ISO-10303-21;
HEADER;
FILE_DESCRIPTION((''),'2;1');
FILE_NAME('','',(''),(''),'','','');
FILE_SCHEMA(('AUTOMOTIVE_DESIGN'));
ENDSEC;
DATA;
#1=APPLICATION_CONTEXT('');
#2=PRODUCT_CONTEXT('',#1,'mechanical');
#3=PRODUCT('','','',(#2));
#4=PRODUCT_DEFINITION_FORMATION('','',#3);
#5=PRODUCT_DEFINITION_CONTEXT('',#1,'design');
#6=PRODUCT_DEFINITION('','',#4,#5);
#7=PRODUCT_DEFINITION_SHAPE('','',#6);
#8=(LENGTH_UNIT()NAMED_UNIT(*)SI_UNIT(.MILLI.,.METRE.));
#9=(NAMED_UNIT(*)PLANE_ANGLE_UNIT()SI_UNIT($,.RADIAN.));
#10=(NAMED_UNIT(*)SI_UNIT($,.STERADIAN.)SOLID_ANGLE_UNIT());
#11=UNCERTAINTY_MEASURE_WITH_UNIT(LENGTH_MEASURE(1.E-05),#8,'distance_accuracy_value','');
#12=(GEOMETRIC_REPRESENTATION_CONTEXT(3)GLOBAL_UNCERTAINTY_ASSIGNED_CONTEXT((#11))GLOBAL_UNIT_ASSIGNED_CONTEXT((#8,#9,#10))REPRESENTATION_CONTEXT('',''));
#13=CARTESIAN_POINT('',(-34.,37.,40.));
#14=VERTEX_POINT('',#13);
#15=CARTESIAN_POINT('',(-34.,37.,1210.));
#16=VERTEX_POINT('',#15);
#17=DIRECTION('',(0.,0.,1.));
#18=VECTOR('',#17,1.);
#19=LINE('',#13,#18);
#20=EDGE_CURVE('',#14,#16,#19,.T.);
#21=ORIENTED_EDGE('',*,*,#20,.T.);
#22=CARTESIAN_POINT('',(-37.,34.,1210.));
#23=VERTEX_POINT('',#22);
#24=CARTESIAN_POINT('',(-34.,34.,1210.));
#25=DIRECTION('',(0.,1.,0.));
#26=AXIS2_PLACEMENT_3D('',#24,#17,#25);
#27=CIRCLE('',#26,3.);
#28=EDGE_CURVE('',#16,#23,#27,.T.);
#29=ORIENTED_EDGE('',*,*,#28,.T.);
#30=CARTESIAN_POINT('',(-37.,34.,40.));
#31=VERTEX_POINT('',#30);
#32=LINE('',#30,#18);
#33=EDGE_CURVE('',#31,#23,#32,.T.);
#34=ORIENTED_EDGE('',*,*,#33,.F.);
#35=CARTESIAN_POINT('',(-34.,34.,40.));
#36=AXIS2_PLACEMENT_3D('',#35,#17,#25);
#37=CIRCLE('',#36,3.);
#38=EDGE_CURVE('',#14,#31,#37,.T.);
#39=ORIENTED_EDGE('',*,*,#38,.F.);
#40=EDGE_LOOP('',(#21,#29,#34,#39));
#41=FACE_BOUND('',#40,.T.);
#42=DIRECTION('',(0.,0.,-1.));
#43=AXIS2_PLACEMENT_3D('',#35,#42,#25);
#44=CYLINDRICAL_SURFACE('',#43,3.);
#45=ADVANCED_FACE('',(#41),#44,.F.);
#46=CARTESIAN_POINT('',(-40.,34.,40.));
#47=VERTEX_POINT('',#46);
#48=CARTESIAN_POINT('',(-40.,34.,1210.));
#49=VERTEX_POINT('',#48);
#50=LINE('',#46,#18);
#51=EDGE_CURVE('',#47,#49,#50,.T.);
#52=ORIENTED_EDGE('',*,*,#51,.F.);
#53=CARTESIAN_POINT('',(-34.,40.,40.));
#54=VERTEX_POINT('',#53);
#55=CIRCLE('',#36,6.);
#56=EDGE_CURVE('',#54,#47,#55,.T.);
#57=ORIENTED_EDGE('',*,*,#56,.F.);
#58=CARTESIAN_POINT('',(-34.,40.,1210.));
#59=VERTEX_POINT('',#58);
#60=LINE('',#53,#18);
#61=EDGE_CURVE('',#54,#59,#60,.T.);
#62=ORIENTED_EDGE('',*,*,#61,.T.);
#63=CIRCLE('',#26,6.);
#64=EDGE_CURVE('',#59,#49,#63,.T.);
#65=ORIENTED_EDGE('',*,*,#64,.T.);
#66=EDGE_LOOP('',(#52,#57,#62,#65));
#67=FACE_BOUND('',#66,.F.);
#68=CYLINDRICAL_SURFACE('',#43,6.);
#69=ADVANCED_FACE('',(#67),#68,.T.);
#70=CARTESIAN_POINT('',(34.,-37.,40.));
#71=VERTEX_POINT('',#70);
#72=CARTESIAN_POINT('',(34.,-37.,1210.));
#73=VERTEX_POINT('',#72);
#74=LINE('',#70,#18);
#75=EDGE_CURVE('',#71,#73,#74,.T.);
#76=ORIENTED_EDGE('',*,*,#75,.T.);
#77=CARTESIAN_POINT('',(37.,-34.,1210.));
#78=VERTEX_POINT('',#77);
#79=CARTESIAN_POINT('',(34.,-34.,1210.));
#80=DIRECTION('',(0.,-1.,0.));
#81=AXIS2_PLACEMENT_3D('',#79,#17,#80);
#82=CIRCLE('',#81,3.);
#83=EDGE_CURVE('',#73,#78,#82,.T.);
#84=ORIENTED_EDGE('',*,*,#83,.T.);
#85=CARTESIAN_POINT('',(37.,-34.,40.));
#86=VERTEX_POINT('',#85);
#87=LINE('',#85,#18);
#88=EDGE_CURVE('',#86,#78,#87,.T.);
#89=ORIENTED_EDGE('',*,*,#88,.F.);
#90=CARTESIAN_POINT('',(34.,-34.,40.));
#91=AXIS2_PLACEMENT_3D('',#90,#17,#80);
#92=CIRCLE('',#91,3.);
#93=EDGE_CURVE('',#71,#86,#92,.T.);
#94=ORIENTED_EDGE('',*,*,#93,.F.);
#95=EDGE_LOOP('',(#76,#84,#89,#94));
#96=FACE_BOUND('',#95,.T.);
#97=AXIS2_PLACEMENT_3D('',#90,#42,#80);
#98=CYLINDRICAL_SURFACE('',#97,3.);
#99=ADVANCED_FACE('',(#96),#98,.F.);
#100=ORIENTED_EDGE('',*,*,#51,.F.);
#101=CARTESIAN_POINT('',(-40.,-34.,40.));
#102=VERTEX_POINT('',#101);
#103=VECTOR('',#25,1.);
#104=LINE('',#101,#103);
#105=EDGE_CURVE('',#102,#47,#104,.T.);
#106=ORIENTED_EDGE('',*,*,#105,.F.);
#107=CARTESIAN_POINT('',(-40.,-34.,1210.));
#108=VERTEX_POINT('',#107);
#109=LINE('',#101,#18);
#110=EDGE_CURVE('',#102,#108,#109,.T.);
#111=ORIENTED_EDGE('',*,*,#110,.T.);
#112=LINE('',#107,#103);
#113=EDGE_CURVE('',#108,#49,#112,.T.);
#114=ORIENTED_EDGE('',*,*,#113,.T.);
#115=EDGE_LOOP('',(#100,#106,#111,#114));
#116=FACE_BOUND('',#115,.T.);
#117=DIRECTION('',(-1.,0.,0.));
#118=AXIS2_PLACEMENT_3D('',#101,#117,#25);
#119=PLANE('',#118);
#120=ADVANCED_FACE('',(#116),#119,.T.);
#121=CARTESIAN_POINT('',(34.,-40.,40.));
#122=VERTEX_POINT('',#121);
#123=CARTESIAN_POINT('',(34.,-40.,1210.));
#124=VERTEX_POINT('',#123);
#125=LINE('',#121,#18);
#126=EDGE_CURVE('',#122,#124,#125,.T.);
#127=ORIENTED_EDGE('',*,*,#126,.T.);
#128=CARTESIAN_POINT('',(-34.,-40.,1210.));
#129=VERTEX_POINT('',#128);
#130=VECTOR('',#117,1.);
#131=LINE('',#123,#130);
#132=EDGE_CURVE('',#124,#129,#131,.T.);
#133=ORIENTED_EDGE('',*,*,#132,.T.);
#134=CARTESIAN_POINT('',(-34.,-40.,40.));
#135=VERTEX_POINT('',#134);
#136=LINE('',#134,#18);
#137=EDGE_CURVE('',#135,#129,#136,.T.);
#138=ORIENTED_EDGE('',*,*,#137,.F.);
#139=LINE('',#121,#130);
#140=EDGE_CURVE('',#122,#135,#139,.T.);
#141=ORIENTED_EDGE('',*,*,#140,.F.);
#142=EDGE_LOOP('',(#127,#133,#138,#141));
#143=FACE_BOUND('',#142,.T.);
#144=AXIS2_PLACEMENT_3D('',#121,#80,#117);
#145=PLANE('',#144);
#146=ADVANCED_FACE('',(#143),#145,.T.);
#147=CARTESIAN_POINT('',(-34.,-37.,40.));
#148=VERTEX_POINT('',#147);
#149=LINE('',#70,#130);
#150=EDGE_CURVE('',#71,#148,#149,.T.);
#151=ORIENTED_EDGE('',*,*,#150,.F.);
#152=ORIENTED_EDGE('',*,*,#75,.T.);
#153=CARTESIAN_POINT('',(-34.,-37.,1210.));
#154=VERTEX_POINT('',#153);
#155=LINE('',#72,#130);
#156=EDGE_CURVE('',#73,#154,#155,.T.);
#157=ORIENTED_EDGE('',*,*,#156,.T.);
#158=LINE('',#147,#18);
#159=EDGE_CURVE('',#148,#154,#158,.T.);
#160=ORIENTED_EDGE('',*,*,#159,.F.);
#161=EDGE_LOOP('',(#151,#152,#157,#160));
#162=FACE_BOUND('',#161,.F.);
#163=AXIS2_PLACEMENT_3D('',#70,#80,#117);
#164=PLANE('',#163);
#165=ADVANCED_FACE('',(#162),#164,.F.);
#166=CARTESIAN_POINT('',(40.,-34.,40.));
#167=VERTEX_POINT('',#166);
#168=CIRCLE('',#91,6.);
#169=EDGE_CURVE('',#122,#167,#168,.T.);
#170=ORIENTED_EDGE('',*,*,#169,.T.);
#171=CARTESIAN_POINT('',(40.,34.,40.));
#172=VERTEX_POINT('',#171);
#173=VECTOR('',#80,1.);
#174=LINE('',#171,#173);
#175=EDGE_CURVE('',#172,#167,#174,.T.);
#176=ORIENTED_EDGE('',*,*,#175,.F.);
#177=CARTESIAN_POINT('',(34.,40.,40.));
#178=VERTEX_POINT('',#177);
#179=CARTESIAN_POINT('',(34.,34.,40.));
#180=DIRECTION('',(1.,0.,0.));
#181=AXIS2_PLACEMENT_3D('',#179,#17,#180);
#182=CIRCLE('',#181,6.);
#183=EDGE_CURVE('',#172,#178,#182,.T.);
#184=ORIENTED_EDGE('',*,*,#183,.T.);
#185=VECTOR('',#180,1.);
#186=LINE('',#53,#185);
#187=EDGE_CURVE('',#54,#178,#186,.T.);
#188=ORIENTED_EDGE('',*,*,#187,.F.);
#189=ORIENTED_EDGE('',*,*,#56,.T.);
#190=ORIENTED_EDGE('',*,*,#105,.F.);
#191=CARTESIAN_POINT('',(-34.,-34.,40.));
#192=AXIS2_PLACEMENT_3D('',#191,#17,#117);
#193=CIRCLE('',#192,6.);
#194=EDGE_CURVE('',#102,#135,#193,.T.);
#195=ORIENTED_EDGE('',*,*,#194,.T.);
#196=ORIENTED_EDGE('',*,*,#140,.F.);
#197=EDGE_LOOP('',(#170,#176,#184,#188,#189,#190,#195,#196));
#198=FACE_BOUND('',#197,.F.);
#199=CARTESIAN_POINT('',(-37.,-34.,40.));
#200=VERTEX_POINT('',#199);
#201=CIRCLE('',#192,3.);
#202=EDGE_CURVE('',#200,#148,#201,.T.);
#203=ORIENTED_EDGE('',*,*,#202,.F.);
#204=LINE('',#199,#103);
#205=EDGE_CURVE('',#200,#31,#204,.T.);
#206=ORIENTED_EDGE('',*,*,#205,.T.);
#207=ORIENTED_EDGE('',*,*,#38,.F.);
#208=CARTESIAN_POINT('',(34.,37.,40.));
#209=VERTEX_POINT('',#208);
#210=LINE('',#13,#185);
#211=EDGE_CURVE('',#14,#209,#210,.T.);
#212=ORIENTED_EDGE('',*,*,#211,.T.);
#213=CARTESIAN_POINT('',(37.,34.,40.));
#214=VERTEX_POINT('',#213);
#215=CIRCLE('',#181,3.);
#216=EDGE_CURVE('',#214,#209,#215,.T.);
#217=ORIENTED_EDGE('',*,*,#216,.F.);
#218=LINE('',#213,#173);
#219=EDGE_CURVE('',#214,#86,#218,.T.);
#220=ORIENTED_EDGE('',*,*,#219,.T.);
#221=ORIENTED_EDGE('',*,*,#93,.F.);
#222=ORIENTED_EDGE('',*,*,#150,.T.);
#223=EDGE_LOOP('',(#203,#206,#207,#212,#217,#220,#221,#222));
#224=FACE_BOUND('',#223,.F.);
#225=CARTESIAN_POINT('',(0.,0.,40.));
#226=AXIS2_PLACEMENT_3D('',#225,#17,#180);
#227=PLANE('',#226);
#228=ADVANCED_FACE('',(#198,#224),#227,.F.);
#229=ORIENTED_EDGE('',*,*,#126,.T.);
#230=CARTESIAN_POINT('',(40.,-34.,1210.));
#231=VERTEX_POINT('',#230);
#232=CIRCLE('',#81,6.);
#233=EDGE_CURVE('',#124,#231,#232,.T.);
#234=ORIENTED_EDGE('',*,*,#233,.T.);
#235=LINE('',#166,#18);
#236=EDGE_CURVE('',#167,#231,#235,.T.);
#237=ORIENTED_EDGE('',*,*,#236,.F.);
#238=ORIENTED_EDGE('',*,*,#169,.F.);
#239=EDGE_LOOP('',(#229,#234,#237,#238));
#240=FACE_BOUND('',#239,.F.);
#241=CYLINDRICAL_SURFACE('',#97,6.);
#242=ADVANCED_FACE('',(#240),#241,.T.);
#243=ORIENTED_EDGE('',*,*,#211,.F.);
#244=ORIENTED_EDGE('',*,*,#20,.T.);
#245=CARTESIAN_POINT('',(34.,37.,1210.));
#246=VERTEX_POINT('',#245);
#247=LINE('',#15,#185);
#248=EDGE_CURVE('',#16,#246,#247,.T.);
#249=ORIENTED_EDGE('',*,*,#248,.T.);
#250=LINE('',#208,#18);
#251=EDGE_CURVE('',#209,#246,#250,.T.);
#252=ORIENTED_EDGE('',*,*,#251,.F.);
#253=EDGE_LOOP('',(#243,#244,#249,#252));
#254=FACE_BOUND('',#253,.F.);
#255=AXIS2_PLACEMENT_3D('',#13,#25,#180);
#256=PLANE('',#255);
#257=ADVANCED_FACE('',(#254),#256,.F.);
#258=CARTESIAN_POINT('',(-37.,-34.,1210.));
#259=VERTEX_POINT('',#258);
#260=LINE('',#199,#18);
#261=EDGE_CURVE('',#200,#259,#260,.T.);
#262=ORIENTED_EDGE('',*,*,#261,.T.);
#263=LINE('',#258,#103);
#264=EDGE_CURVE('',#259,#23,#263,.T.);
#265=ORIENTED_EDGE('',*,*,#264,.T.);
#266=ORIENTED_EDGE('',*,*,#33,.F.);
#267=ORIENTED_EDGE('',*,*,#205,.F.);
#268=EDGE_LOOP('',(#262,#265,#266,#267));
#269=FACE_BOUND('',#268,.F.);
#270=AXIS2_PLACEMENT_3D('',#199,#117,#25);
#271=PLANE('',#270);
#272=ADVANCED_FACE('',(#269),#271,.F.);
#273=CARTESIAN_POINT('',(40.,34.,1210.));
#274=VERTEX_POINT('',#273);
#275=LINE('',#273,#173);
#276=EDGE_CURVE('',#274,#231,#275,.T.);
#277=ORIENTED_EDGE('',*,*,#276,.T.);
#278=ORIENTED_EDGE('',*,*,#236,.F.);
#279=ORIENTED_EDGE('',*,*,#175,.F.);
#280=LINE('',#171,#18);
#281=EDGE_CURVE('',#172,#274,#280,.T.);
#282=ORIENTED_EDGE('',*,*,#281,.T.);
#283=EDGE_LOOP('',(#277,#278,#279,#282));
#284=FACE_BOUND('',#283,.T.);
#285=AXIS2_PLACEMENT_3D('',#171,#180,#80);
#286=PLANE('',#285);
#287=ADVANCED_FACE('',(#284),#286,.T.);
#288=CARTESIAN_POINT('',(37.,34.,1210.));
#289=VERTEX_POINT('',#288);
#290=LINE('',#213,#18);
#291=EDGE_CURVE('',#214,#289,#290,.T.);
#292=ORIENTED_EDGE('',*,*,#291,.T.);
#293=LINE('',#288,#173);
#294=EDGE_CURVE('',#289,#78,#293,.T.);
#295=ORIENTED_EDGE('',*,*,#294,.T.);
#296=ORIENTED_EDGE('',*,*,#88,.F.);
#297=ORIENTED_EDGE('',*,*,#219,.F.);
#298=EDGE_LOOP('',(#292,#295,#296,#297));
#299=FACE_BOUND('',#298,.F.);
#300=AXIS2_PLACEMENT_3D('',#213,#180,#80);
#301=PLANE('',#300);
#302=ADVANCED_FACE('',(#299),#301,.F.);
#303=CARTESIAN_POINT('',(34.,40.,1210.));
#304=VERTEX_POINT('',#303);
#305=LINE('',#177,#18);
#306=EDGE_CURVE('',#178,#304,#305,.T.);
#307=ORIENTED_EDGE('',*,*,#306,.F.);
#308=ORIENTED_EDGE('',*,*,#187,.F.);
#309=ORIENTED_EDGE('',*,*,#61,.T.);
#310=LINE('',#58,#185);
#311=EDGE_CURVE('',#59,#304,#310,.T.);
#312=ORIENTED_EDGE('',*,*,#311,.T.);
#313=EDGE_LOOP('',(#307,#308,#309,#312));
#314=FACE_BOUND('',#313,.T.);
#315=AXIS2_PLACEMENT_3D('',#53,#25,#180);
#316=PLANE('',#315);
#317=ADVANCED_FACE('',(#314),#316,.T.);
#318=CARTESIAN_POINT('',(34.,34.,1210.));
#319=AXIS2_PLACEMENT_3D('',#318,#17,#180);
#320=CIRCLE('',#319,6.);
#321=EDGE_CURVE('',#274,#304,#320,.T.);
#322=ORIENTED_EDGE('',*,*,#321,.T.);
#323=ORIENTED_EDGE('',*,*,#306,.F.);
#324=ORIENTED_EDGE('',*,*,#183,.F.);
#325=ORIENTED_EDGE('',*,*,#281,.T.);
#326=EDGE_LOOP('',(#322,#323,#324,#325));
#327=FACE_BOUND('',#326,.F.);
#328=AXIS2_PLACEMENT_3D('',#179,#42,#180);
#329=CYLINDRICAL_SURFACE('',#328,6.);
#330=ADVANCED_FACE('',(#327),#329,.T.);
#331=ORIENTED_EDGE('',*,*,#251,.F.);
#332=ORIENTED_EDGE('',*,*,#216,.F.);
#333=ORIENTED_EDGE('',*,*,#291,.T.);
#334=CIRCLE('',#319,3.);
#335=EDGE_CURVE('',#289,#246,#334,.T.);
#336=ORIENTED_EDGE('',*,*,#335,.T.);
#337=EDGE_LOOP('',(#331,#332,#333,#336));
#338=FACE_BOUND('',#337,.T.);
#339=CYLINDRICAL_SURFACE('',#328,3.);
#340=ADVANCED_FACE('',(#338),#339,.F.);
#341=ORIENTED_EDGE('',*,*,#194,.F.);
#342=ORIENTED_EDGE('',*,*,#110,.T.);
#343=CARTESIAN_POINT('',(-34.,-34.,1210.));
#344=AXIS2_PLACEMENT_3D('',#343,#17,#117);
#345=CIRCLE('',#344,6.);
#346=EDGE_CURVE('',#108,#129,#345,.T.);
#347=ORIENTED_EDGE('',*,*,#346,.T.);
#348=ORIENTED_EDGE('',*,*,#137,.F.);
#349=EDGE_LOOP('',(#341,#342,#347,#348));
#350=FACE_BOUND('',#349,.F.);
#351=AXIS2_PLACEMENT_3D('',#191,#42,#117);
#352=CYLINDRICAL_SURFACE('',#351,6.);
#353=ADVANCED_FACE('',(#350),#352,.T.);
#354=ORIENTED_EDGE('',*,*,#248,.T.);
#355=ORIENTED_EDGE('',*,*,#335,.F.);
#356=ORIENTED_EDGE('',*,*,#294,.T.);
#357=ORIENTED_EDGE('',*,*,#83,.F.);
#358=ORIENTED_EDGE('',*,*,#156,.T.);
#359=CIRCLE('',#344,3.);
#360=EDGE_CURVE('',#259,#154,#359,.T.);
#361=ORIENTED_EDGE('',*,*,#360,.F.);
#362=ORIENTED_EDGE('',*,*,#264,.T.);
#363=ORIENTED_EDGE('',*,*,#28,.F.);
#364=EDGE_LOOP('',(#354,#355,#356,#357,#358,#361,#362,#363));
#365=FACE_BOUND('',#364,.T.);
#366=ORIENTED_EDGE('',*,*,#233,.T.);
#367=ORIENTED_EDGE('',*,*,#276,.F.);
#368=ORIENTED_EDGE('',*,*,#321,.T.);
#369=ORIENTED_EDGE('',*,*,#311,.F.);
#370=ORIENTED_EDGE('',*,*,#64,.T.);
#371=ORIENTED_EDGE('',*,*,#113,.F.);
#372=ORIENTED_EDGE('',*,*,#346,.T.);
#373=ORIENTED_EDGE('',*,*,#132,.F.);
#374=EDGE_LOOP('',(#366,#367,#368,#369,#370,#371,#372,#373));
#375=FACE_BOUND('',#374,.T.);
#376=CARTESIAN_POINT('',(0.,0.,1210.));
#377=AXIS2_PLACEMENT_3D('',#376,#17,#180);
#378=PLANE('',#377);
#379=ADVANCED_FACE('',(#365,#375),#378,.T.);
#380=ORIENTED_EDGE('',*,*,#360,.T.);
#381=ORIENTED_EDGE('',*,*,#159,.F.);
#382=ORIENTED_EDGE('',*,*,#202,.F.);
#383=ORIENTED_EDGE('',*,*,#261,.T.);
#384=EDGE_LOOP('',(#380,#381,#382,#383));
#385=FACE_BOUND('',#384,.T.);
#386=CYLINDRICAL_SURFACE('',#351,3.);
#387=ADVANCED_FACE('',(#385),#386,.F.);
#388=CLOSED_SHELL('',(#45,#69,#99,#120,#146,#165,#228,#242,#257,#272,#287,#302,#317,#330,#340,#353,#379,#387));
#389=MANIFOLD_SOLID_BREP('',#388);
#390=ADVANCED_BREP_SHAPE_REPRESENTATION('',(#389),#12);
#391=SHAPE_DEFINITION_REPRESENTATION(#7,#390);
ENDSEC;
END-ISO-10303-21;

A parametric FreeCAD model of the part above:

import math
import FreeCAD as App
import Part
import Sketcher
from FreeCAD import Vector

doc = App.newDocument("Part")
body = doc.addObject("PartDesign::Body", "Body")

# Sketch on XY plane
sketch1 = body.newObject("Sketcher::SketchObject", "Sketch")
sketch1.AttachmentSupport = (doc.getObject("XY_Plane"), [""])
sketch1.MapMode = "FlatFace"
sketch1.AttachmentOffset = App.Placement(Vector(0, 0, 40), App.Rotation())
sketch1.addGeometry([
    Part.LineSegment(Vector(-40, 34, 0), Vector(-40, -34, 0)),  # 0
    Part.ArcOfCircle(Part.Circle(Vector(-34, -34, 0), Vector(0, 0, 1), 6), math.radians(180), math.radians(270)),  # 1
    Part.LineSegment(Vector(-34, -40, 0), Vector(34, -40, 0)),  # 2
    Part.ArcOfCircle(Part.Circle(Vector(34, -34, 0), Vector(0, 0, 1), 6), math.radians(-90), math.radians(0)),  # 3
    Part.LineSegment(Vector(40, -34, 0), Vector(40, 34, 0)),  # 4
    Part.ArcOfCircle(Part.Circle(Vector(34, 34, 0), Vector(0, 0, 1), 6), math.radians(0), math.radians(90)),  # 5
    Part.LineSegment(Vector(34, 40, 0), Vector(-34, 40, 0)),  # 6
    Part.ArcOfCircle(Part.Circle(Vector(-34, 34, 0), Vector(0, 0, 1), 6), math.radians(90), math.radians(180)),  # 7
    Part.ArcOfCircle(Part.Circle(Vector(-34, 34, 0), Vector(0, 0, 1), 3), math.radians(90), math.radians(180)),  # 8
    Part.LineSegment(Vector(-34, 37, 0), Vector(34, 37, 0)),  # 9
    Part.ArcOfCircle(Part.Circle(Vector(34, 34, 0), Vector(0, 0, 1), 3), math.radians(0), math.radians(90)),  # 10
    Part.LineSegment(Vector(37, 34, 0), Vector(37, -34, 0)),  # 11
    Part.ArcOfCircle(Part.Circle(Vector(34, -34, 0), Vector(0, 0, 1), 3), math.radians(-90), math.radians(0)),  # 12
    Part.LineSegment(Vector(34, -37, 0), Vector(-34, -37, 0)),  # 13
    Part.ArcOfCircle(Part.Circle(Vector(-34, -34, 0), Vector(0, 0, 1), 3), math.radians(180), math.radians(270)),  # 14
    Part.LineSegment(Vector(-37, -34, 0), Vector(-37, 34, 0)),  # 15
], False)
sketch1.addConstraint([
    Sketcher.Constraint("Tangent", 0, 2, 1, 1),
    Sketcher.Constraint("Tangent", 1, 2, 2, 1),
    Sketcher.Constraint("Tangent", 2, 2, 3, 1),
    Sketcher.Constraint("Tangent", 3, 2, 4, 1),
    Sketcher.Constraint("Tangent", 4, 2, 5, 1),
    Sketcher.Constraint("Tangent", 5, 2, 6, 1),
    Sketcher.Constraint("Tangent", 6, 2, 7, 1),
    Sketcher.Constraint("Tangent", 7, 2, 0, 1),
    Sketcher.Constraint("Tangent", 8, 1, 9, 1),
    Sketcher.Constraint("Tangent", 9, 2, 10, 2),
    Sketcher.Constraint("Tangent", 10, 1, 11, 1),
    Sketcher.Constraint("Tangent", 11, 2, 12, 2),
    Sketcher.Constraint("Tangent", 12, 1, 13, 1),
    Sketcher.Constraint("Tangent", 13, 2, 14, 2),
    Sketcher.Constraint("Tangent", 14, 1, 15, 1),
    Sketcher.Constraint("Tangent", 15, 2, 8, 2),
    Sketcher.Constraint("Vertical", 0),
    Sketcher.Constraint("Horizontal", 2),
    Sketcher.Constraint("Vertical", 4),
    Sketcher.Constraint("Horizontal", 6),
    Sketcher.Constraint("Horizontal", 9),
    Sketcher.Constraint("Vertical", 11),
    Sketcher.Constraint("Horizontal", 13),
    Sketcher.Constraint("Vertical", 15),
    Sketcher.Constraint("Coincident", 8, 3, 7, 3),
    Sketcher.Constraint("Coincident", 10, 3, 5, 3),
    Sketcher.Constraint("Coincident", 12, 3, 3, 3),
    Sketcher.Constraint("Equal", 1, 3),
    Sketcher.Constraint("Equal", 3, 5),
    Sketcher.Constraint("Equal", 5, 7),
    Sketcher.Constraint("Equal", 12, 14),
    Sketcher.Constraint("Symmetric", 1, 3, 5, 3, -1, 1),
    Sketcher.Constraint("Equal", 13, 0),
    Sketcher.Constraint("Radius", 1, 6.0),
    Sketcher.Constraint("Radius", 8, 3.0),
    Sketcher.Constraint("DistanceX", 0, 2, -1, 1, 40.0),
])
pad1 = body.newObject("PartDesign::Pad", "Pad")
pad1.Profile = sketch1
pad1.Length = 1170

doc.recompute()
